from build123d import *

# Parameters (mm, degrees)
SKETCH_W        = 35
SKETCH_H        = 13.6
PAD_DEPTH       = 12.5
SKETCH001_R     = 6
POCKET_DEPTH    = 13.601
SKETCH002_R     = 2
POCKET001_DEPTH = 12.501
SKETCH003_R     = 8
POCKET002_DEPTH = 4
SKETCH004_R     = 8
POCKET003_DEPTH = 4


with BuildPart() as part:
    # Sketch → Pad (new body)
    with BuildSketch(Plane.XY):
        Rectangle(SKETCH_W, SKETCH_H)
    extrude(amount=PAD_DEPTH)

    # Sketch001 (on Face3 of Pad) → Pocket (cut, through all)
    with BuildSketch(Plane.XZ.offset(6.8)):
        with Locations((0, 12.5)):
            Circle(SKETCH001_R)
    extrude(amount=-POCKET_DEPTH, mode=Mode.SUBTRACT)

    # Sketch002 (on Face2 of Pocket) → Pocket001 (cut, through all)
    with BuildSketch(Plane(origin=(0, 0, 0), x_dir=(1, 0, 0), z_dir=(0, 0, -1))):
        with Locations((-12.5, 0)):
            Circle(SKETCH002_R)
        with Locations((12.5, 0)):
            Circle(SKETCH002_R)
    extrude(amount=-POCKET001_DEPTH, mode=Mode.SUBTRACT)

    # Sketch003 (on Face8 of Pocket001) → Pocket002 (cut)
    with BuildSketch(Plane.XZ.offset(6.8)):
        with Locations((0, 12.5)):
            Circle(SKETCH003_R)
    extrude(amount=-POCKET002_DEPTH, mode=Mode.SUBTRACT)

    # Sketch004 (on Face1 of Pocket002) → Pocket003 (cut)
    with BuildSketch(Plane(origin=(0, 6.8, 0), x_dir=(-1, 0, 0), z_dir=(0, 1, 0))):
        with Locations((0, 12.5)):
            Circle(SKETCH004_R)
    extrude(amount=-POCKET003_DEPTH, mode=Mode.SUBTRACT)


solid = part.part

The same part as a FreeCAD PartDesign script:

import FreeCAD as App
import Part
import Sketcher
Q = App.Units.Quantity


def add_polygon(sketch, points):
    """Adds a closed chain of lines whose ends are joined by coincident constraints."""
    first, n = sketch.GeometryCount, len(points)
    for a, b in zip(points, points[1:] + points[:1]):
        sketch.addGeometry(Part.LineSegment(App.Vector(*a, 0), App.Vector(*b, 0)), False)
    for i in range(n):
        sketch.addConstraint(Sketcher.Constraint("Coincident", first + i, 2, first + (i + 1) % n, 1))

doc = App.newDocument("Part")
params = doc.addObject("Spreadsheet::Sheet", "Params")
for row, (alias, value) in enumerate([
    ("sketch1_width", "35 mm"),
    ("sketch1_height", "13.6 mm"),
    ("pad1_length", "12.5 mm"),
    ("sketch2_diameter", "12 mm"),
    ("sketch3_diameter", "4 mm"),
    ("sketch4_diameter", "16 mm"),
    ("pocket3_length", "4 mm"),
    ("sketch5_diameter", "16 mm"),
    ("pocket4_length", "4 mm"),
], start=1):
    params.set(f"A{row}", alias)
    params.set(f"B{row}", "=" + value)
    params.setAlias(f"B{row}", alias)

body = doc.addObject("PartDesign::Body", "Body")

sketch1 = doc.addObject("Sketcher::SketchObject", "Sketch")
body.addObject(sketch1)
sketch1.AttachmentSupport = (doc.XY_Plane, [""])
sketch1.MapMode = "FlatFace"
add_polygon(sketch1, [(-17.5, 6.8), (-17.5, -6.8), (17.5, -6.8), (17.5, 6.8)])
sketch1.addConstraint([
    Sketcher.Constraint("Vertical", 0),
    Sketcher.Constraint("Horizontal", 1),
    Sketcher.Constraint("Vertical", 2),
    Sketcher.Constraint("Horizontal", 3),
    Sketcher.Constraint("Symmetric", 0, 2, 2, 2, -1, 1),
    Sketcher.Constraint("DistanceX", 1, 1, 1, 2, Q("35 mm")),
    Sketcher.Constraint("DistanceY", 0, 2, 0, 1, Q("13.6 mm")),
])
sketch1.setExpression("Constraints[9]", "Params.sketch1_width")
sketch1.setExpression("Constraints[10]", "Params.sketch1_height")
pad1 = doc.addObject("PartDesign::Pad", "Pad")
body.addObject(pad1)
pad1.Profile = sketch1
pad1.setExpression("Length", "Params.pad1_length")

sketch2 = doc.addObject("Sketcher::SketchObject", "Sketch001")
body.addObject(sketch2)
sketch2.AttachmentSupport = (doc.XZ_Plane, [""])
sketch2.MapMode = "FlatFace"
sketch2.AttachmentOffset = App.Placement(App.Vector(0, 0, 6.8), App.Rotation())
sketch2.addGeometry(Part.Circle(App.Vector(0, 12.5, 0), App.Vector(0, 0, 1), 6), False)
sketch2.addConstraint([
    Sketcher.Constraint("PointOnObject", 0, 3, -2),
    Sketcher.Constraint("Diameter", 0, Q("12 mm")),
    Sketcher.Constraint("DistanceY", -1, 1, 0, 3, Q("12.5 mm")),
])
sketch2.setExpression("Constraints[1]", "Params.sketch2_diameter")
pocket1 = doc.addObject("PartDesign::Pocket", "Pocket")
body.addObject(pocket1)
pocket1.Profile = sketch2
pocket1.Type = "ThroughAll"

sketch3 = doc.addObject("Sketcher::SketchObject", "Sketch002")
body.addObject(sketch3)
sketch3.AttachmentSupport = (doc.XY_Plane, [""])
sketch3.MapMode = "FlatFace"
sketch3.addGeometry([
    Part.Circle(App.Vector(-12.5, 0, 0), App.Vector(0, 0, 1), 2),
    Part.Circle(App.Vector(12.5, 0, 0), App.Vector(0, 0, 1), 2),
], False)
sketch3.addConstraint([
    Sketcher.Constraint("Equal", 0, 1),
    Sketcher.Constraint("Symmetric", 0, 3, 1, 3, -1, 1),
    Sketcher.Constraint("PointOnObject", 0, 3, -1),
    Sketcher.Constraint("Diameter", 0, Q("4 mm")),
    Sketcher.Constraint("DistanceX", 0, 3, 1, 3, Q("25 mm")),
])
sketch3.setExpression("Constraints[3]", "Params.sketch3_diameter")
pocket2 = doc.addObject("PartDesign::Pocket", "Pocket001")
body.addObject(pocket2)
pocket2.Profile = sketch3
pocket2.Type = "ThroughAll"
pocket2.Reversed = True

sketch4 = doc.addObject("Sketcher::SketchObject", "Sketch003")
body.addObject(sketch4)
sketch4.AttachmentSupport = (doc.XZ_Plane, [""])
sketch4.MapMode = "FlatFace"
sketch4.AttachmentOffset = App.Placement(App.Vector(0, 0, 6.8), App.Rotation())
sketch4.addGeometry(Part.Circle(App.Vector(0, 12.5, 0), App.Vector(0, 0, 1), 8), False)
sketch4.addConstraint([
    Sketcher.Constraint("PointOnObject", 0, 3, -2),
    Sketcher.Constraint("Diameter", 0, Q("16 mm")),
    Sketcher.Constraint("DistanceY", -1, 1, 0, 3, Q("12.5 mm")),
])
sketch4.setExpression("Constraints[1]", "Params.sketch4_diameter")
pocket3 = doc.addObject("PartDesign::Pocket", "Pocket002")
body.addObject(pocket3)
pocket3.Profile = sketch4
pocket3.setExpression("Length", "Params.pocket3_length")

sketch5 = doc.addObject("Sketcher::SketchObject", "Sketch004")
body.addObject(sketch5)
sketch5.AttachmentSupport = (doc.XZ_Plane, [""])
sketch5.MapMode = "FlatFace"
sketch5.AttachmentOffset = App.Placement(App.Vector(0, 0, -6.8), App.Rotation())
sketch5.addGeometry(Part.Circle(App.Vector(0, 12.5, 0), App.Vector(0, 0, 1), 8), False)
sketch5.addConstraint([
    Sketcher.Constraint("PointOnObject", 0, 3, -2),
    Sketcher.Constraint("Diameter", 0, Q("16 mm")),
    Sketcher.Constraint("DistanceY", -1, 1, 0, 3, Q("12.5 mm")),
])
sketch5.setExpression("Constraints[1]", "Params.sketch5_diameter")
pocket4 = doc.addObject("PartDesign::Pocket", "Pocket003")
body.addObject(pocket4)
pocket4.Profile = sketch5
pocket4.setExpression("Length", "Params.pocket4_length")
pocket4.Reversed = True

doc.recompute()
